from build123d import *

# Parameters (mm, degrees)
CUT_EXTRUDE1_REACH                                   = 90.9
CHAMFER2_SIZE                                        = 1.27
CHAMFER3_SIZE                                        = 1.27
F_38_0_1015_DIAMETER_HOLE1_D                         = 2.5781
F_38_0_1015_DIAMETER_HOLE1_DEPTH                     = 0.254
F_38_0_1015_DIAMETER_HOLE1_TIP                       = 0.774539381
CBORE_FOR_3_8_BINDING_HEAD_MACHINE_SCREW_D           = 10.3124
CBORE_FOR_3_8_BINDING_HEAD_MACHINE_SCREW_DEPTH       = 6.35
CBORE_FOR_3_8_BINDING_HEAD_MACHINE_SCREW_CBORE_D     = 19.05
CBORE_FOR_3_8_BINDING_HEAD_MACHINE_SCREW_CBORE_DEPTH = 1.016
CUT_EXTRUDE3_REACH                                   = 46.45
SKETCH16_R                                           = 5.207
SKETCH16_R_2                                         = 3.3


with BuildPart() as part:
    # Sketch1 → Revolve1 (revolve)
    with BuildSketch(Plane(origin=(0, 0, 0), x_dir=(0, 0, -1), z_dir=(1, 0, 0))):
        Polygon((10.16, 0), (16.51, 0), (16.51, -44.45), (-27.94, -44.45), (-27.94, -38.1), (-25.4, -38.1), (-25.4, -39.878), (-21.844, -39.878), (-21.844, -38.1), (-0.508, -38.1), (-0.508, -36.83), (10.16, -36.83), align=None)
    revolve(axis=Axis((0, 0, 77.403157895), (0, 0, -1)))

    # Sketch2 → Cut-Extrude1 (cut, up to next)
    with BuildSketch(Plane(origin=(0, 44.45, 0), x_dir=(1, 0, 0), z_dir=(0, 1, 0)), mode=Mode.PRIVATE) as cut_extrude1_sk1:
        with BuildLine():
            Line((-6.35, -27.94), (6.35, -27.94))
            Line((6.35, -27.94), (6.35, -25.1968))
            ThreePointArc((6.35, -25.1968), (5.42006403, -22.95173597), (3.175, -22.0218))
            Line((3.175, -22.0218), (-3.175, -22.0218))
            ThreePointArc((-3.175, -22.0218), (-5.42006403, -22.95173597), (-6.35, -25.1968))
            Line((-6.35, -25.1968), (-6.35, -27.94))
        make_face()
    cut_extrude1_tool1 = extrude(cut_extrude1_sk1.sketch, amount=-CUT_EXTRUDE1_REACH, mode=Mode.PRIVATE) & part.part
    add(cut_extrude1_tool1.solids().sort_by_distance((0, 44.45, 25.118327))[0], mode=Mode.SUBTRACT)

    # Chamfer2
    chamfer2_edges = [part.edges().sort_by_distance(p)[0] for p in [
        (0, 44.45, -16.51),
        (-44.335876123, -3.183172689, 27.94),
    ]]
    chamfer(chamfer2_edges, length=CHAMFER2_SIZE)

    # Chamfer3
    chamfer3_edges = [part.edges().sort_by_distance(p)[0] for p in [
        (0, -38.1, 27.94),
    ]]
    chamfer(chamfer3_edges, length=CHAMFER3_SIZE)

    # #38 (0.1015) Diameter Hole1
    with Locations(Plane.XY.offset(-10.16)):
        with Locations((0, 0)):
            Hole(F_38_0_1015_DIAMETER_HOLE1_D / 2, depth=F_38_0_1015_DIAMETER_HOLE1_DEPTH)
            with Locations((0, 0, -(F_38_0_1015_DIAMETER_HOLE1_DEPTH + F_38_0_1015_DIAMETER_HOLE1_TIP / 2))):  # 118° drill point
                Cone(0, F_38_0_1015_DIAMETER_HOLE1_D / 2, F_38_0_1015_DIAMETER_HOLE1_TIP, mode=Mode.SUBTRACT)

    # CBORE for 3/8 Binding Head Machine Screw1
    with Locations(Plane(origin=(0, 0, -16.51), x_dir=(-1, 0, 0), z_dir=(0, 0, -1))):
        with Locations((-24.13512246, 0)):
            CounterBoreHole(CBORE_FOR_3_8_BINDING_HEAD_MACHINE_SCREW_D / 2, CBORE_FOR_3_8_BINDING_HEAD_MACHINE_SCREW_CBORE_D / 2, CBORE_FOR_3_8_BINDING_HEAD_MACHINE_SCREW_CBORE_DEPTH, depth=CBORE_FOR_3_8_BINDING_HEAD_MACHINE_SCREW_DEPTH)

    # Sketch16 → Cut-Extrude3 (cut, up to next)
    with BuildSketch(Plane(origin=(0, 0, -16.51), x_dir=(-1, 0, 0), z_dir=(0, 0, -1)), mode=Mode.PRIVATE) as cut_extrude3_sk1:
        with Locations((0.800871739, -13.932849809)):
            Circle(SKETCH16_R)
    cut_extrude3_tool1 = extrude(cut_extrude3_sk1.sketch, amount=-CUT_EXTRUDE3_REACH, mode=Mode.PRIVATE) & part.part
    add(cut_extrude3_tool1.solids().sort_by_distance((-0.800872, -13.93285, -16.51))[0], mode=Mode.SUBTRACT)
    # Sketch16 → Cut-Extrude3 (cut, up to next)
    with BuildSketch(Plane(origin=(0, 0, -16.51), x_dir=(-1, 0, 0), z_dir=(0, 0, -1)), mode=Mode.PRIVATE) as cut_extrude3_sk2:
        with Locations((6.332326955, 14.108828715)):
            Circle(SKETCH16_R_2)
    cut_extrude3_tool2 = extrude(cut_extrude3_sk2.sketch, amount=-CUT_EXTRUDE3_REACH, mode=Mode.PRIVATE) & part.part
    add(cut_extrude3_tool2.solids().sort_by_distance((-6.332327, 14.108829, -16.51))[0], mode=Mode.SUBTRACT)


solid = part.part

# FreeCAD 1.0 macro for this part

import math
import FreeCAD as App
import Part
import Sketcher

V = App.Vector
Q = App.Units.Quantity


def edges_at(feature, points):
    """Names of the edges that pass closest to the given points."""
    edges = feature.Shape.Edges
    near = lambda p: min(range(len(edges)), key=lambda i: edges[i].distToShape(Part.Vertex(*p))[0])
    return sorted({f"Edge{near(p) + 1}" for p in points})

doc = App.newDocument("Part")
body = doc.addObject("PartDesign::Body", "Body")

# Sketch on YZ plane
sketch1 = doc.addObject("Sketcher::SketchObject", "Sketch")
body.addObject(sketch1)
sketch1.AttachmentSupport = (doc.YZ_Plane, [""])
sketch1.MapMode = "FlatFace"
sketch1.addGeometry([
    Part.LineSegment(V(0, -16.5, 0), V(0, -10.2, 0)),  # 0
    Part.LineSegment(V(0, -10.2, 0), V(-36.8, -10.2, 0)),  # 1
    Part.LineSegment(V(-36.8, -10.2, 0), V(-36.8, 0.5, 0)),  # 2
    Part.LineSegment(V(-36.8, 0.5, 0), V(-38.1, 0.5, 0)),  # 3
    Part.LineSegment(V(-38.1, 0.5, 0), V(-38.1, 21.8, 0)),  # 4
    Part.LineSegment(V(-38.1, 21.8, 0), V(-39.9, 21.8, 0)),  # 5
    Part.LineSegment(V(-39.9, 21.8, 0), V(-39.9, 25.4, 0)),  # 6
    Part.LineSegment(V(-39.9, 25.4, 0), V(-38.1, 25.4, 0)),  # 7
    Part.LineSegment(V(-38.1, 25.4, 0), V(-38.1, 27.9, 0)),  # 8
    Part.LineSegment(V(-38.1, 27.9, 0), V(-44.5, 27.9, 0)),  # 9
    Part.LineSegment(V(-44.5, 27.9, 0), V(-44.5, -16.5, 0)),  # 10
    Part.LineSegment(V(-44.5, -16.5, 0), V(0, -16.5, 0)),  # 11
], False)
sketch1.addConstraint([
    Sketcher.Constraint("Coincident", 0, 2, 1, 1),
    Sketcher.Constraint("Coincident", 1, 2, 2, 1),
    Sketcher.Constraint("Coincident", 2, 2, 3, 1),
    Sketcher.Constraint("Coincident", 3, 2, 4, 1),
    Sketcher.Constraint("Coincident", 4, 2, 5, 1),
    Sketcher.Constraint("Coincident", 5, 2, 6, 1),
    Sketcher.Constraint("Coincident", 6, 2, 7, 1),
    Sketcher.Constraint("Coincident", 7, 2, 8, 1),
    Sketcher.Constraint("Coincident", 8, 2, 9, 1),
    Sketcher.Constraint("Coincident", 9, 2, 10, 1),
    Sketcher.Constraint("Coincident", 10, 2, 11, 1),
    Sketcher.Constraint("Coincident", 11, 2, 0, 1),
    Sketcher.Constraint("Vertical", 0),
    Sketcher.Constraint("Horizontal", 1),
    Sketcher.Constraint("Vertical", 2),
    Sketcher.Constraint("Horizontal", 3),
    Sketcher.Constraint("Vertical", 4),
    Sketcher.Constraint("Horizontal", 5),
    Sketcher.Constraint("Vertical", 6),
    Sketcher.Constraint("Horizontal", 7),
    Sketcher.Constraint("Vertical", 8),
    Sketcher.Constraint("Horizontal", 9),
    Sketcher.Constraint("Vertical", 10),
    Sketcher.Constraint("Horizontal", 11),
    Sketcher.Constraint("PointOnObject", 0, 2, -2),
    Sketcher.Constraint("Vertical", 4, 2, 7, 2),
    Sketcher.Constraint("Equal", 9, 0),
    Sketcher.Constraint("Equal", 11, 10),
    Sketcher.Constraint("DistanceY", 8, 1, 8, 2, Q("0.1 in")),
    Sketcher.Constraint("DistanceY", -1, 1, 6, 2, Q("1 in")),
    Sketcher.Constraint("DistanceX", 1, 2, 1, 1, Q("1.45 in")),
    Sketcher.Constraint("DistanceX", 3, 2, 3, 1, Q("0.05 in")),
    Sketcher.Constraint("DistanceX", 5, 2, 5, 1, Q("0.07 in")),
    Sketcher.Constraint("DistanceX", 9, 2, 9, 1, Q("0.25 in")),
    Sketcher.Constraint("DistanceY", 2, 1, 2, 2, Q("0.42 in")),
    Sketcher.Constraint("DistanceY", 4, 1, 4, 2, Q("0.84 in")),
])
revolution = doc.addObject("PartDesign::Revolution", "Revolution")
body.addObject(revolution)
revolution.Profile = sketch1
revolution.ReferenceAxis = (sketch1, ["V_Axis"])
revolution.Angle = 360

# Sketch on XZ plane
sketch2 = doc.addObject("Sketcher::SketchObject", "Sketch001")
body.addObject(sketch2)
sketch2.AttachmentSupport = (doc.XZ_Plane, [""])
sketch2.MapMode = "FlatFace"
sketch2.AttachmentOffset = App.Placement(V(0, 0, -1.75 * 25.4), App.Rotation())
sketch2.addGeometry([
    Part.LineSegment(V(-6.3, 27.9, 0), V(6.3, 27.9, 0)),  # 0
    Part.LineSegment(V(6.3, 27.9, 0), V(6.3, 25.2, 0)),  # 1
    Part.ArcOfCircle(Part.Circle(V(3.2, 25.2, 0), V(0, 0, 1), 3.2), math.radians(-90), math.radians(0)),  # 2
    Part.LineSegment(V(3.2, 22, 0), V(-3.2, 22, 0)),  # 3
    Part.ArcOfCircle(Part.Circle(V(-3.2, 25.2, 0), V(0, 0, 1), 3.2), math.radians(-180), math.radians(-90)),  # 4
    Part.LineSegment(V(-6.3, 25.2, 0), V(-6.3, 27.9, 0)),  # 5
], False)
sketch2.addConstraint([
    Sketcher.Constraint("Coincident", 0, 2, 1, 1),
    Sketcher.Constraint("Tangent", 1, 2, 2, 2),
    Sketcher.Constraint("Tangent", 2, 1, 3, 1),
    Sketcher.Constraint("Tangent", 3, 2, 4, 2),
    Sketcher.Constraint("Tangent", 4, 1, 5, 1),
    Sketcher.Constraint("Coincident", 5, 2, 0, 1),
    Sketcher.Constraint("Horizontal", 0),
    Sketcher.Constraint("Vertical", 1),
    Sketcher.Constraint("Horizontal", 3),
    Sketcher.Constraint("Vertical", 5),
    Sketcher.Constraint("Equal", 2, 4),
    Sketcher.Constraint("DistanceX", 0, 1, 0, 2, Q("0.5 in")),
    Sketcher.Constraint("Radius", 2, Q("0.125 in")),
    Sketcher.Constraint("DistanceY", -1, 1, 0, 2, Q("1.1 in")),
    Sketcher.Constraint("DistanceY", 1, 2, 1, 1, Q("0.108 in")),
    Sketcher.Constraint("DistanceX", -1, 1, 0, 2, Q("0.25 in")),
])
pocket1 = doc.addObject("PartDesign::Pocket", "Pocket")
body.addObject(pocket1)
pocket1.Profile = sketch2
pocket1.Length = 6.882893
pocket1.Reversed = True
doc.recompute()

chamfer = doc.addObject("PartDesign::Chamfer", "Chamfer")
body.addObject(chamfer)
chamfer.Base = (pocket1, edges_at(pocket1, [(0, 44.45, -16.51), (-44.336, -3.183, 27.94)]))
chamfer.Size = Q("0.05 in")
doc.recompute()

chamfer2 = doc.addObject("PartDesign::Chamfer", "Chamfer001")
body.addObject(chamfer2)
chamfer2.Base = (chamfer, edges_at(chamfer, [(0, -38.1, 27.94)]))
chamfer2.Size = Q("0.05 in")

# Sketch on XY plane
sketch3 = doc.addObject("Sketcher::SketchObject", "Sketch002")
body.addObject(sketch3)
sketch3.AttachmentSupport = (doc.XY_Plane, [""])
sketch3.MapMode = "FlatFace"
sketch3.AttachmentOffset = App.Placement(V(0, 0, -0.4 * 25.4), App.Rotation())
sketch3.addGeometry(Part.Circle(V(0, 0, 0), V(0, 0, 1), 1.3), False)
sketch3.addConstraint([
    Sketcher.Constraint("Coincident", 0, 3, -1, 1),
    Sketcher.Constraint("Diameter", 0, Q("0.1015 in")),
])
doc.recompute()
hole = doc.addObject("PartDesign::Hole", "Hole")
body.addObject(hole)
hole.Profile = sketch3
hole.ThreadType = "None"
hole.Diameter = Q("0.1015 in")
hole.DepthType = "Dimension"
hole.Depth = Q("0.01 in")
hole.DrillPoint = "Angled"
hole.DrillPointAngle = 118

# Sketch on XY plane
sketch4 = doc.addObject("Sketcher::SketchObject", "Sketch003")
body.addObject(sketch4)
sketch4.AttachmentSupport = (doc.XY_Plane, [""])
sketch4.MapMode = "FlatFace"
sketch4.AttachmentOffset = App.Placement(V(0, 0, -0.65 * 25.4), App.Rotation())
sketch4.addGeometry(Part.Circle(V(24, 0, 0), V(0, 0, 1), 5), False)
sketch4.addConstraint([
    Sketcher.Constraint("PointOnObject", 0, 3, -1),
    Sketcher.Constraint("Diameter", 0, Q("0.406 in")),
    Sketcher.Constraint("DistanceX", -1, 1, 0, 3, 24.135122),
])
doc.recompute()
hole2 = doc.addObject("PartDesign::Hole", "Hole001")
body.addObject(hole2)
hole2.Profile = sketch4
hole2.ThreadType = "None"
hole2.Diameter = Q("0.406 in")
hole2.DepthType = "Dimension"
hole2.Depth = Q("0.25 in")
hole2.DrillPoint = "Flat"
hole2.HoleCutType = "Counterbore"
hole2.HoleCutDiameter = Q("0.75 in")
hole2.HoleCutDepth = Q("0.04 in")
hole2.Reversed = True

# Sketch on XY plane
sketch5 = doc.addObject("Sketcher::SketchObject", "Sketch004")
body.addObject(sketch5)
sketch5.AttachmentSupport = (doc.XY_Plane, [""])
sketch5.MapMode = "FlatFace"
sketch5.AttachmentOffset = App.Placement(V(0, 0, -0.65 * 25.4), App.Rotation())
sketch5.addGeometry(Part.Circle(V(-1, -14, 0), V(0, 0, 1), 5), False)
sketch5.addConstraint([
    Sketcher.Constraint("Diameter", 0, Q("0.41 in")),
    Sketcher.Constraint("DistanceX", 0, 3, -1, 1, 0.800872),
    Sketcher.Constraint("DistanceY", 0, 3, -1, 1, 13.93285),
])
pocket2 = doc.addObject("PartDesign::Pocket", "Pocket001")
body.addObject(pocket2)
pocket2.Profile = sketch5
pocket2.Type = "UpToFirst"
pocket2.Reversed = True

# Sketch on XY plane
sketch6 = doc.addObject("Sketcher::SketchObject", "Sketch005")
body.addObject(sketch6)
sketch6.AttachmentSupport = (doc.XY_Plane, [""])
sketch6.MapMode = "FlatFace"
sketch6.AttachmentOffset = App.Placement(V(0, 0, -0.65 * 25.4), App.Rotation())
sketch6.addGeometry(Part.Circle(V(-6.3, 14.1, 0), V(0, 0, 1), 3.3), False)
sketch6.addConstraint([
    Sketcher.Constraint("Diameter", 0, 6.6),
    Sketcher.Constraint("DistanceY", -1, 1, 0, 3, 14.108829),
    Sketcher.Constraint("DistanceX", 0, 3, -1, 1, 6.332327),
])
pocket3 = doc.addObject("PartDesign::Pocket", "Pocket002")
body.addObject(pocket3)
pocket3.Profile = sketch6
pocket3.Type = "UpToFirst"
pocket3.Reversed = True

doc.recompute()
